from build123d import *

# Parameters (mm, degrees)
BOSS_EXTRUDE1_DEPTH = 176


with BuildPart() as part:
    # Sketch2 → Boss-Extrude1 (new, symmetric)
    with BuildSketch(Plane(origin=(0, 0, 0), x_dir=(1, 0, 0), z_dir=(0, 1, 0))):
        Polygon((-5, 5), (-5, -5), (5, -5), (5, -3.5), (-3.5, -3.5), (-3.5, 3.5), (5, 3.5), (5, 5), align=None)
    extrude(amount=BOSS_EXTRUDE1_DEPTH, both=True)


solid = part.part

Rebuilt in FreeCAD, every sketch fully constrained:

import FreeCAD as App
import Part
import Sketcher
from FreeCAD import Vector
Q = App.Units.Quantity

doc = App.newDocument("Part")
body = doc.addObject("PartDesign::Body", "Body")

# Sketch on XZ plane
sketch1 = doc.addObject("Sketcher::SketchObject", "Sketch")
body.addObject(sketch1)
sketch1.AttachmentSupport = (doc.XZ_Plane, [""])
sketch1.MapMode = "FlatFace"
sketch1.addGeometry(Part.LineSegment(Vector(-5, -5, 0), Vector(-5, 5, 0)), False)
sketch1.addGeometry(Part.LineSegment(Vector(-5, 5, 0), Vector(5, 5, 0)), False)
sketch1.addGeometry(Part.LineSegment(Vector(5, 5, 0), Vector(5, 3.5, 0)), False)
sketch1.addGeometry(Part.LineSegment(Vector(5, 3.5, 0), Vector(-3.5, 3.5, 0)), False)
sketch1.addGeometry(Part.LineSegment(Vector(-3.5, 3.5, 0), Vector(-3.5, -3.5, 0)), False)
sketch1.addGeometry(Part.LineSegment(Vector(-3.5, -3.5, 0), Vector(5, -3.5, 0)), False)
sketch1.addGeometry(Part.LineSegment(Vector(5, -3.5, 0), Vector(5, -5, 0)), False)
sketch1.addGeometry(Part.LineSegment(Vector(5, -5, 0), Vector(-5, -5, 0)), False)
sketch1.addConstraint(Sketcher.Constraint("Coincident", 0, 2, 1, 1))
sketch1.addConstraint(Sketcher.Constraint("Coincident", 1, 2, 2, 1))
sketch1.addConstraint(Sketcher.Constraint("Coincident", 2, 2, 3, 1))
sketch1.addConstraint(Sketcher.Constraint("Coincident", 3, 2, 4, 1))
sketch1.addConstraint(Sketcher.Constraint("Coincident", 4, 2, 5, 1))
sketch1.addConstraint(Sketcher.Constraint("Coincident", 5, 2, 6, 1))
sketch1.addConstraint(Sketcher.Constraint("Coincident", 6, 2, 7, 1))
sketch1.addConstraint(Sketcher.Constraint("Coincident", 7, 2, 0, 1))
sketch1.addConstraint(Sketcher.Constraint("Vertical", 0))
sketch1.addConstraint(Sketcher.Constraint("Horizontal", 1))
sketch1.addConstraint(Sketcher.Constraint("Vertical", 2))
sketch1.addConstraint(Sketcher.Constraint("Horizontal", 3))
sketch1.addConstraint(Sketcher.Constraint("Vertical", 4))
sketch1.addConstraint(Sketcher.Constraint("Horizontal", 5))
sketch1.addConstraint(Sketcher.Constraint("Vertical", 6))
sketch1.addConstraint(Sketcher.Constraint("Horizontal", 7))
sketch1.addConstraint(Sketcher.Constraint("Symmetric", 0, 2, 6, 2, -1, 1))
sketch1.addConstraint(Sketcher.Constraint("Symmetric", 2, 2, 5, 2, -1))
sketch1.addConstraint(Sketcher.Constraint("Equal", 7, 0))
sketch1.addConstraint(Sketcher.Constraint("DistanceX", 1, 1, 1, 2, Q("10 mm")))
sketch1.addConstraint(Sketcher.Constraint("DistanceY", 4, 2, 4, 1, Q("7 mm")))
sketch1.addConstraint(Sketcher.Constraint("DistanceX", 3, 2, 3, 1, Q("8.5 mm")))
pad1 = doc.addObject("PartDesign::Pad", "Pad")
body.addObject(pad1)
pad1.Profile = sketch1
pad1.Length = 352
pad1.Midplane = True

doc.recompute()
